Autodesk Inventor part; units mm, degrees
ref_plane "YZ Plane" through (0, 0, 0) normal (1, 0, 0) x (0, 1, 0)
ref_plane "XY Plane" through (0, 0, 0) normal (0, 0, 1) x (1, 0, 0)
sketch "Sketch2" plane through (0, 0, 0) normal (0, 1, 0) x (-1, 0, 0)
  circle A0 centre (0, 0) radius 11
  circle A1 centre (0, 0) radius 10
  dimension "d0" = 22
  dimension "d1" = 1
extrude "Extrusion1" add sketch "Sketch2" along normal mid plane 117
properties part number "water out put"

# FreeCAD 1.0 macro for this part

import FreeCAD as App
import Part
import Sketcher
from FreeCAD import Vector

doc = App.newDocument("Part")
body = doc.addObject("PartDesign::Body", "Body")

sketch1 = body.newObject("Sketcher::SketchObject", "Sketch")
sketch1.AttachmentSupport = (doc.getObject("XZ_Plane"), [""])
sketch1.MapMode = "FlatFace"
sketch1.addGeometry(Part.Circle(Vector(0, 0, 0), Vector(0, 0, 1), 11), False)
sketch1.addGeometry(Part.Circle(Vector(0, 0, 0), Vector(0, 0, 1), 10), False)
sketch1.addConstraint(Sketcher.Constraint("Coincident", 0, 3, -1, 1))
sketch1.addConstraint(Sketcher.Constraint("Coincident", 1, 3, -1, 1))
sketch1.addConstraint(Sketcher.Constraint("Diameter", 0, 22.0))
sketch1.addConstraint(Sketcher.Constraint("Diameter", 1, 20.0))
pad1 = body.newObject("PartDesign::Pad", "Pad")
pad1.Profile = sketch1
pad1.Length = 117
pad1.Midplane = True

doc.recompute()
